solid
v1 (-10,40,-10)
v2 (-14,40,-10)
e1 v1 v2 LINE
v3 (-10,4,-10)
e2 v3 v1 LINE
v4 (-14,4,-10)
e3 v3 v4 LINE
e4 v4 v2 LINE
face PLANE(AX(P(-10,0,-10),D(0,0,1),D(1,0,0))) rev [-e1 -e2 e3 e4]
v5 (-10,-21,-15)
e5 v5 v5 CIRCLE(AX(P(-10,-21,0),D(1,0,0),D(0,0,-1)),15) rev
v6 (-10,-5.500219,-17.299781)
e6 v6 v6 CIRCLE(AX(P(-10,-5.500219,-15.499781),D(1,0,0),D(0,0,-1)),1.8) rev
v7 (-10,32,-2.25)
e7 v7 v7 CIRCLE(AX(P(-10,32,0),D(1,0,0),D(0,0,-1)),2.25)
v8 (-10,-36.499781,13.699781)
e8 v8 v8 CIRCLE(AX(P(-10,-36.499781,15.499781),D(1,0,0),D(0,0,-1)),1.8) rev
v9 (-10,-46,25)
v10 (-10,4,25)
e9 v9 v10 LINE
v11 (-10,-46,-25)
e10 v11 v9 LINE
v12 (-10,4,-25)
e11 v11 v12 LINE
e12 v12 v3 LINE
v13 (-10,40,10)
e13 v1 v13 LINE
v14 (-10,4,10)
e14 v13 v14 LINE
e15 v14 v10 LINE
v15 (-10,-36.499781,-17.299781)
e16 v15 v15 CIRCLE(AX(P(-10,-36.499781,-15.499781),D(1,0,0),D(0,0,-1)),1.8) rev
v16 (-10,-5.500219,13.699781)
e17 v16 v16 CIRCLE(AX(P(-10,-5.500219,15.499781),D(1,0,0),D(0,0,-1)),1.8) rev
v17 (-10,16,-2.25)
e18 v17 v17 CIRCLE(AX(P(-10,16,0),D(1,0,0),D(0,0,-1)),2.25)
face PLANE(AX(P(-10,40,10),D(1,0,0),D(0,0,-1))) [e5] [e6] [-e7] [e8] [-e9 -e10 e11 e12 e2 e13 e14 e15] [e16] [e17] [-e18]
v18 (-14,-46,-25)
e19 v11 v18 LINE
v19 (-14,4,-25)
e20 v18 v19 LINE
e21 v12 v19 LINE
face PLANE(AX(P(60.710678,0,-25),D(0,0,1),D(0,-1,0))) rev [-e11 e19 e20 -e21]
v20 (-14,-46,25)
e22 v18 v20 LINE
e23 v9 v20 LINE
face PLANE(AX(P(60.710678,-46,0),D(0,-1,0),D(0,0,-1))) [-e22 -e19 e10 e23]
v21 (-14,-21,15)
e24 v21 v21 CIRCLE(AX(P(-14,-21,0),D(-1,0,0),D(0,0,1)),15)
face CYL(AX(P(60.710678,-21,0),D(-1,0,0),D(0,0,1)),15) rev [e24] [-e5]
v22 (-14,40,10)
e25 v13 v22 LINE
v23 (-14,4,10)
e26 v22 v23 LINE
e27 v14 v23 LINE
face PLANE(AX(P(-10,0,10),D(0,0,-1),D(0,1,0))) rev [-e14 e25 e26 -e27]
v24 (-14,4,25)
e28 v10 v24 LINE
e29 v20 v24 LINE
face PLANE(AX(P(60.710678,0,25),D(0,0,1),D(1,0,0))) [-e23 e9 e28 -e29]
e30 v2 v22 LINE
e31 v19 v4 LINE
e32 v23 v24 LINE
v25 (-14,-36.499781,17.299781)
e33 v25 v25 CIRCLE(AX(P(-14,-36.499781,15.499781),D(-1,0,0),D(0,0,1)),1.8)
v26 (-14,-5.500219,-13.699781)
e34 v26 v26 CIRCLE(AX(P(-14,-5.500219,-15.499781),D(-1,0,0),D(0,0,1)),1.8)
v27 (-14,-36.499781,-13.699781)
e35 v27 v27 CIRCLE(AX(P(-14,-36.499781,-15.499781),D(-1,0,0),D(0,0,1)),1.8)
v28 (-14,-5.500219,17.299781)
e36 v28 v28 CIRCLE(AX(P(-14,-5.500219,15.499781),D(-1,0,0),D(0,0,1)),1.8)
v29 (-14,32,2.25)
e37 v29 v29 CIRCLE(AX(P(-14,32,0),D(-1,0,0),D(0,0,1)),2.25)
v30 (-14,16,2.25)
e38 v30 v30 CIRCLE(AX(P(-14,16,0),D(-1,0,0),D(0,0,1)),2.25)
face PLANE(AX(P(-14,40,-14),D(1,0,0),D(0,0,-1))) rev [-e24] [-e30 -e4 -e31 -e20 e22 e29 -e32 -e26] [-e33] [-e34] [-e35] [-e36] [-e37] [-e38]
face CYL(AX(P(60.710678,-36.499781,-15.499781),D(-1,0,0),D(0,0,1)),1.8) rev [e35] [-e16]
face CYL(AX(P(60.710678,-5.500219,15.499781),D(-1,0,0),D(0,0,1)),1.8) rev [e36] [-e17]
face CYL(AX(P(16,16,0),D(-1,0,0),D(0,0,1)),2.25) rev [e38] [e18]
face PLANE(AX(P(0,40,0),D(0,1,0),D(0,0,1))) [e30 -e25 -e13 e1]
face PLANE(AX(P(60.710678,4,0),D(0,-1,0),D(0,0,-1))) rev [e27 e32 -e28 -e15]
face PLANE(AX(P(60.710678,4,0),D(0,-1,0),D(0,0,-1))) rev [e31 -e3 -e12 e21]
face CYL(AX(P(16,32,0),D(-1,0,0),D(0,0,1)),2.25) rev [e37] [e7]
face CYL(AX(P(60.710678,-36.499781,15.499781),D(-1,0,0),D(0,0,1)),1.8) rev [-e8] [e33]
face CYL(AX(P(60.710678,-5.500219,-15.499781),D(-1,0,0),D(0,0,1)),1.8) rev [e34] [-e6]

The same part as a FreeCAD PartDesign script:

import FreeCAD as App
import Part
import Sketcher
from FreeCAD import Vector
Q = App.Units.Quantity

doc = App.newDocument("Part")
params = doc.addObject("Spreadsheet::Sheet", "Params")
for row, (alias, value) in enumerate([
    ("sketch1_width", "28 mm"),
    ("sketch1_width2", "20 mm"),
    ("pad1_length", "40 mm"),
    ("sketch2_diameter", "4.5 mm"),
    ("pocket1_length", "30 mm"),
    ("sketch3_diameter", "30 mm"),
    ("sketch3_diameter2", "3.6 mm"),
    ("sketch3_width", "50 mm"),
    ("pad2_length", "4 mm"),
    ("sketch4_width", "24 mm"),
    ("sketch4_height", "28 mm"),
    ("pocket2_length", "40 mm"),
    ("sketch5_width", "36 mm"),
    ("sketch5_height", "4 mm"),
    ("pocket3_length", "4 mm"),
], start=1):
    params.set(f"A{row}", alias)
    params.set(f"B{row}", "=" + value)
    params.setAlias(f"B{row}", alias)

body = doc.addObject("PartDesign::Body", "Body")

sketch1 = body.newObject("Sketcher::SketchObject", "Sketch")
sketch1.AttachmentSupport = (doc.getObject("XZ_Plane"), [""])
sketch1.MapMode = "FlatFace"
sketch1.addGeometry(Part.LineSegment(Vector(-14, -14, 0), Vector(-14, 14, 0)), False)
sketch1.addGeometry(Part.LineSegment(Vector(-14, 14, 0), Vector(14, 14, 0)), False)
sketch1.addGeometry(Part.LineSegment(Vector(14, 14, 0), Vector(14, -14, 0)), False)
sketch1.addGeometry(Part.LineSegment(Vector(14, -14, 0), Vector(-14, -14, 0)), False)
sketch1.addGeometry(Part.LineSegment(Vector(10, 10, 0), Vector(-10, 10, 0)), False)
sketch1.addGeometry(Part.LineSegment(Vector(-10, 10, 0), Vector(-10, -10, 0)), False)
sketch1.addGeometry(Part.LineSegment(Vector(-10, -10, 0), Vector(10, -10, 0)), False)
sketch1.addGeometry(Part.LineSegment(Vector(10, -10, 0), Vector(10, 10, 0)), False)
sketch1.addConstraint(Sketcher.Constraint("Coincident", 0, 2, 1, 1))
sketch1.addConstraint(Sketcher.Constraint("Coincident", 1, 2, 2, 1))
sketch1.addConstraint(Sketcher.Constraint("Coincident", 2, 2, 3, 1))
sketch1.addConstraint(Sketcher.Constraint("Coincident", 3, 2, 0, 1))
sketch1.addConstraint(Sketcher.Constraint("Coincident", 4, 2, 5, 1))
sketch1.addConstraint(Sketcher.Constraint("Coincident", 5, 2, 6, 1))
sketch1.addConstraint(Sketcher.Constraint("Coincident", 6, 2, 7, 1))
sketch1.addConstraint(Sketcher.Constraint("Coincident", 7, 2, 4, 1))
sketch1.addConstraint(Sketcher.Constraint("Vertical", 0))
sketch1.addConstraint(Sketcher.Constraint("Horizontal", 1))
sketch1.addConstraint(Sketcher.Constraint("Vertical", 2))
sketch1.addConstraint(Sketcher.Constraint("Horizontal", 3))
sketch1.addConstraint(Sketcher.Constraint("Horizontal", 4))
sketch1.addConstraint(Sketcher.Constraint("Vertical", 5))
sketch1.addConstraint(Sketcher.Constraint("Horizontal", 6))
sketch1.addConstraint(Sketcher.Constraint("Vertical", 7))
sketch1.addConstraint(Sketcher.Constraint("Symmetric", 0, 2, 2, 2, -1, 1))
sketch1.addConstraint(Sketcher.Constraint("Symmetric", 4, 2, 6, 2, -1, 1))
sketch1.addConstraint(Sketcher.Constraint("Equal", 3, 0))
sketch1.addConstraint(Sketcher.Constraint("Equal", 6, 5))
sketch1.addConstraint(Sketcher.Constraint("DistanceX", 1, 1, 1, 2, Q("28 mm")))
sketch1.addConstraint(Sketcher.Constraint("DistanceX", 4, 2, 4, 1, Q("20 mm")))
sketch1.setExpression("Constraints[20]", "Params.sketch1_width")
sketch1.setExpression("Constraints[21]", "Params.sketch1_width2")
pad1 = body.newObject("PartDesign::Pad", "Pad")
pad1.Profile = sketch1
pad1.setExpression("Length", "Params.pad1_length")
pad1.Reversed = True

sketch2 = body.newObject("Sketcher::SketchObject", "Sketch001")
sketch2.AttachmentSupport = (doc.getObject("YZ_Plane"), [""])
sketch2.MapMode = "FlatFace"
sketch2.AttachmentOffset = App.Placement(Vector(0, 0, -14), App.Rotation())
sketch2.addGeometry(Part.Circle(Vector(32, 0, 0), Vector(0, 0, 1), 2.2), False)
sketch2.addGeometry(Part.Circle(Vector(16, 0, 0), Vector(0, 0, 1), 2.2), False)
sketch2.addConstraint(Sketcher.Constraint("Equal", 0, 1))
sketch2.addConstraint(Sketcher.Constraint("PointOnObject", 0, 3, -1))
sketch2.addConstraint(Sketcher.Constraint("PointOnObject", 1, 3, -1))
sketch2.addConstraint(Sketcher.Constraint("Diameter", 0, Q("4.5 mm")))
sketch2.addConstraint(Sketcher.Constraint("DistanceX", -1, 1, 0, 3, Q("32 mm")))
sketch2.addConstraint(Sketcher.Constraint("DistanceX", -1, 1, 1, 3, Q("16 mm")))
sketch2.setExpression("Constraints[3]", "Params.sketch2_diameter")
pocket1 = body.newObject("PartDesign::Pocket", "Pocket")
pocket1.Profile = sketch2
pocket1.setExpression("Length", "Params.pocket1_length")
pocket1.Reversed = True

sketch3 = body.newObject("Sketcher::SketchObject", "Sketch002")
sketch3.AttachmentSupport = (doc.getObject("YZ_Plane"), [""])
sketch3.MapMode = "FlatFace"
sketch3.AttachmentOffset = App.Placement(Vector(0, 0, -14), App.Rotation())
sketch3.addGeometry(Part.LineSegment(Vector(4, -25, 0), Vector(-46, -25, 0)), False)
sketch3.addGeometry(Part.LineSegment(Vector(-46, -25, 0), Vector(-46, 25, 0)), False)
sketch3.addGeometry(Part.LineSegment(Vector(-46, 25, 0), Vector(4, 25, 0)), False)
sketch3.addGeometry(Part.LineSegment(Vector(4, 25, 0), Vector(4, -25, 0)), False)
sketch3.addGeometry(Part.Circle(Vector(-36.5, -15.5, 0), Vector(0, 0, 1), 1.8), False)
sketch3.addGeometry(Part.Circle(Vector(-36.5, 15.5, 0), Vector(0, 0, 1), 1.8), False)
sketch3.addGeometry(Part.Circle(Vector(-21, 0, 0), Vector(0, 0, 1), 15), False)
sketch3.addGeometry(Part.Circle(Vector(-5.5, -15.5, 0), Vector(0, 0, 1), 1.8), False)
sketch3.addGeometry(Part.Circle(Vector(-5.5, 15.5, 0), Vector(0, 0, 1), 1.8), False)
sketch3.addConstraint(Sketcher.Constraint("Coincident", 0, 2, 1, 1))
sketch3.addConstraint(Sketcher.Constraint("Coincident", 1, 2, 2, 1))
sketch3.addConstraint(Sketcher.Constraint("Coincident", 2, 2, 3, 1))
sketch3.addConstraint(Sketcher.Constraint("Coincident", 3, 2, 0, 1))
sketch3.addConstraint(Sketcher.Constraint("Horizontal", 0))
sketch3.addConstraint(Sketcher.Constraint("Vertical", 1))
sketch3.addConstraint(Sketcher.Constraint("Horizontal", 2))
sketch3.addConstraint(Sketcher.Constraint("Vertical", 3))
sketch3.addConstraint(Sketcher.Constraint("Equal", 4, 5))
sketch3.addConstraint(Sketcher.Constraint("Equal", 5, 7))
sketch3.addConstraint(Sketcher.Constraint("Equal", 7, 8))
sketch3.addConstraint(Sketcher.Constraint("Symmetric", 4, 3, 5, 3, -1))
sketch3.addConstraint(Sketcher.Constraint("Symmetric", 7, 3, 8, 3, -1))
sketch3.addConstraint(Sketcher.Constraint("PointOnObject", 6, 3, -1))
sketch3.addConstraint(Sketcher.Constraint("Horizontal", 4, 3, 7, 3))
sketch3.addConstraint(Sketcher.Constraint("Equal", 2, 1))
sketch3.addConstraint(Sketcher.Constraint("Diameter", 6, Q("30 mm")))
sketch3.addConstraint(Sketcher.Constraint("Diameter", 4, Q("3.6 mm")))
sketch3.addConstraint(Sketcher.Constraint("DistanceX", 0, 2, 0, 1, Q("50 mm")))
sketch3.addConstraint(Sketcher.Constraint("DistanceX", 6, 3, -1, 1, Q("21 mm")))
sketch3.addConstraint(Sketcher.Constraint("DistanceX", 0, 2, -1, 1, Q("46 mm")))
sketch3.addConstraint(Sketcher.Constraint("DistanceY", 0, 2, -1, 1, Q("25 mm")))
sketch3.addConstraint(Sketcher.Constraint("DistanceX", 4, 3, -1, 1, Q("36.499781 mm")))
sketch3.addConstraint(Sketcher.Constraint("DistanceY", 4, 3, -1, 1, Q("15.499781 mm")))
sketch3.addConstraint(Sketcher.Constraint("DistanceX", 7, 3, -1, 1, Q("5.500219 mm")))
sketch3.setExpression("Constraints[16]", "Params.sketch3_diameter")
sketch3.setExpression("Constraints[17]", "Params.sketch3_diameter2")
sketch3.setExpression("Constraints[18]", "Params.sketch3_width")
pad2 = body.newObject("PartDesign::Pad", "Pad001")
pad2.Profile = sketch3
pad2.setExpression("Length", "Params.pad2_length")

sketch4 = body.newObject("Sketcher::SketchObject", "Sketch003")
sketch4.AttachmentSupport = (doc.getObject("XZ_Plane"), [""])
sketch4.MapMode = "FlatFace"
sketch4.addGeometry(Part.LineSegment(Vector(-10, 14, 0), Vector(-10, -14, 0)), False)
sketch4.addGeometry(Part.LineSegment(Vector(-10, -14, 0), Vector(14, -14, 0)), False)
sketch4.addGeometry(Part.LineSegment(Vector(14, -14, 0), Vector(14, 14, 0)), False)
sketch4.addGeometry(Part.LineSegment(Vector(14, 14, 0), Vector(-10, 14, 0)), False)
sketch4.addConstraint(Sketcher.Constraint("Coincident", 0, 2, 1, 1))
sketch4.addConstraint(Sketcher.Constraint("Coincident", 1, 2, 2, 1))
sketch4.addConstraint(Sketcher.Constraint("Coincident", 2, 2, 3, 1))
sketch4.addConstraint(Sketcher.Constraint("Coincident", 3, 2, 0, 1))
sketch4.addConstraint(Sketcher.Constraint("Vertical", 0))
sketch4.addConstraint(Sketcher.Constraint("Horizontal", 1))
sketch4.addConstraint(Sketcher.Constraint("Vertical", 2))
sketch4.addConstraint(Sketcher.Constraint("Horizontal", 3))
sketch4.addConstraint(Sketcher.Constraint("DistanceX", 1, 1, 1, 2, Q("24 mm")))
sketch4.addConstraint(Sketcher.Constraint("DistanceY", 0, 2, 0, 1, Q("28 mm")))
sketch4.addConstraint(Sketcher.Constraint("DistanceX", 0, 2, -1, 1, Q("10 mm")))
sketch4.addConstraint(Sketcher.Constraint("DistanceY", 0, 2, -1, 1, Q("14 mm")))
sketch4.setExpression("Constraints[8]", "Params.sketch4_width")
sketch4.setExpression("Constraints[9]", "Params.sketch4_height")
pocket2 = body.newObject("PartDesign::Pocket", "Pocket001")
pocket2.Profile = sketch4
pocket2.setExpression("Length", "Params.pocket2_length")

sketch5 = body.newObject("Sketcher::SketchObject", "Sketch004")
sketch5.AttachmentSupport = (doc.getObject("YZ_Plane"), [""])
sketch5.MapMode = "FlatFace"
sketch5.AttachmentOffset = App.Placement(Vector(0, 0, -14), App.Rotation())
sketch5.addGeometry(Part.LineSegment(Vector(40, -14, 0), Vector(4, -14, 0)), False)
sketch5.addGeometry(Part.LineSegment(Vector(4, -14, 0), Vector(4, -10, 0)), False)
sketch5.addGeometry(Part.LineSegment(Vector(4, -10, 0), Vector(40, -10, 0)), False)
sketch5.addGeometry(Part.LineSegment(Vector(40, -10, 0), Vector(40, -14, 0)), False)
sketch5.addGeometry(Part.LineSegment(Vector(40, 10, 0), Vector(4, 10, 0)), False)
sketch5.addGeometry(Part.LineSegment(Vector(4, 10, 0), Vector(4, 14, 0)), False)
sketch5.addGeometry(Part.LineSegment(Vector(4, 14, 0), Vector(40, 14, 0)), False)
sketch5.addGeometry(Part.LineSegment(Vector(40, 14, 0), Vector(40, 10, 0)), False)
sketch5.addConstraint(Sketcher.Constraint("Coincident", 0, 2, 1, 1))
sketch5.addConstraint(Sketcher.Constraint("Coincident", 1, 2, 2, 1))
sketch5.addConstraint(Sketcher.Constraint("Coincident", 2, 2, 3, 1))
sketch5.addConstraint(Sketcher.Constraint("Coincident", 3, 2, 0, 1))
sketch5.addConstraint(Sketcher.Constraint("Coincident", 4, 2, 5, 1))
sketch5.addConstraint(Sketcher.Constraint("Coincident", 5, 2, 6, 1))
sketch5.addConstraint(Sketcher.Constraint("Coincident", 6, 2, 7, 1))
sketch5.addConstraint(Sketcher.Constraint("Coincident", 7, 2, 4, 1))
sketch5.addConstraint(Sketcher.Constraint("Horizontal", 0))
sketch5.addConstraint(Sketcher.Constraint("Vertical", 1))
sketch5.addConstraint(Sketcher.Constraint("Horizontal", 2))
sketch5.addConstraint(Sketcher.Constraint("Vertical", 3))
sketch5.addConstraint(Sketcher.Constraint("Horizontal", 4))
sketch5.addConstraint(Sketcher.Constraint("Vertical", 5))
sketch5.addConstraint(Sketcher.Constraint("Horizontal", 6))
sketch5.addConstraint(Sketcher.Constraint("Vertical", 7))
sketch5.addConstraint(Sketcher.Constraint("Symmetric", 1, 2, 4, 2, -1))
sketch5.addConstraint(Sketcher.Constraint("Symmetric", 3, 2, 6, 2, -1))
sketch5.addConstraint(Sketcher.Constraint("DistanceX", 0, 2, 0, 1, Q("36 mm")))
sketch5.addConstraint(Sketcher.Constraint("DistanceY", 1, 1, 1, 2, Q("4 mm")))
sketch5.addConstraint(Sketcher.Constraint("DistanceX", -1, 1, 0, 2, Q("4 mm")))
sketch5.addConstraint(Sketcher.Constraint("DistanceY", 0, 2, -1, 1, Q("14 mm")))
sketch5.setExpression("Constraints[18]", "Params.sketch5_width")
sketch5.setExpression("Constraints[19]", "Params.sketch5_height")
pocket3 = body.newObject("PartDesign::Pocket", "Pocket002")
pocket3.Profile = sketch5
pocket3.setExpression("Length", "Params.pocket3_length")
pocket3.Reversed = True

doc.recompute()
